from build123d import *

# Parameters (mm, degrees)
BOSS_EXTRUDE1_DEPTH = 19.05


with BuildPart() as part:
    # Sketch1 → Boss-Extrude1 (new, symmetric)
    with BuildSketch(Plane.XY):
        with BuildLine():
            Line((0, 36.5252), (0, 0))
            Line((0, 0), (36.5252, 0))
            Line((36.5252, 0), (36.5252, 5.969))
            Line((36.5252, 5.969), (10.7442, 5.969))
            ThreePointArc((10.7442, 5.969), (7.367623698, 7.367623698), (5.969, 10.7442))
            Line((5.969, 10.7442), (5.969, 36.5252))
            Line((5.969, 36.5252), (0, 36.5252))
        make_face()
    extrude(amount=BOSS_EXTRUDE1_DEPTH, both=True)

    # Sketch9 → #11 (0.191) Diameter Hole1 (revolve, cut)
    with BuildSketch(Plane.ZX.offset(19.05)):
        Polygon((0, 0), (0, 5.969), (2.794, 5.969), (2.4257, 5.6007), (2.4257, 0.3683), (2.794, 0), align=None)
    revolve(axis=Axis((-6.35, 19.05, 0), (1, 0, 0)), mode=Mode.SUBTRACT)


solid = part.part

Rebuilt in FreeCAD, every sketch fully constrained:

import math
import FreeCAD as App
import Part
import Sketcher
Q = App.Units.Quantity

doc = App.newDocument("Part")
params = doc.addObject("Spreadsheet::Sheet", "Params")
for row, (alias, value) in enumerate([
    ("sketch1_radius", "0.188 in"),
    ("sketch1_width", "1.438 in"),
    ("sketch1_width2", "1.015 in"),
    ("pad1_length", "1.5 in"),
    ("sketch2_height", "0.11 in"),
    ("sketch2_width", "0.235 in"),
    ("sketch2_width2", "0.206 in"),
    ("groove_angle", "360 deg"),
], start=1):
    params.set(f"A{row}", alias)
    params.set(f"B{row}", "=" + value)
    params.setAlias(f"B{row}", alias)

body = doc.addObject("PartDesign::Body", "Body")

# Sketch on XY plane
sketch1 = body.newObject("Sketcher::SketchObject", "Sketch")
sketch1.AttachmentSupport = (doc.getObject("XY_Plane"), [""])
sketch1.MapMode = "FlatFace"
sketch1.addGeometry([
    Part.LineSegment(App.Vector(0, 36.5252, 0), App.Vector(0, 0, 0)),  # 0
    Part.LineSegment(App.Vector(0, 0, 0), App.Vector(36.5252, 0, 0)),  # 1
    Part.LineSegment(App.Vector(36.5252, 0, 0), App.Vector(36.5252, 5.969, 0)),  # 2
    Part.LineSegment(App.Vector(36.5252, 5.969, 0), App.Vector(10.7442, 5.969, 0)),  # 3
    Part.ArcOfCircle(Part.Circle(App.Vector(10.7442, 10.7442, 0), App.Vector(0, 0, 1), 4.7752), math.radians(180), math.radians(270)),  # 4
    Part.LineSegment(App.Vector(5.969, 10.7442, 0), App.Vector(5.969, 36.5252, 0)),  # 5
    Part.LineSegment(App.Vector(5.969, 36.5252, 0), App.Vector(0, 36.5252, 0)),  # 6
], False)
sketch1.addConstraint([
    Sketcher.Constraint("Coincident", 0, 2, 1, 1),
    Sketcher.Constraint("Coincident", 1, 2, 2, 1),
    Sketcher.Constraint("Coincident", 2, 2, 3, 1),
    Sketcher.Constraint("Tangent", 3, 2, 4, 2),
    Sketcher.Constraint("Tangent", 4, 1, 5, 1),
    Sketcher.Constraint("Coincident", 5, 2, 6, 1),
    Sketcher.Constraint("Coincident", 6, 2, 0, 1),
    Sketcher.Constraint("Vertical", 0),
    Sketcher.Constraint("Horizontal", 1),
    Sketcher.Constraint("Vertical", 2),
    Sketcher.Constraint("Horizontal", 3),
    Sketcher.Constraint("Vertical", 5),
    Sketcher.Constraint("Horizontal", 6),
    Sketcher.Constraint("Coincident", 0, 2, -1, 1),
    Sketcher.Constraint("Equal", 1, 0),
    Sketcher.Constraint("Equal", 6, 2),
    Sketcher.Constraint("Radius", 4, Q("0.188 in")),
    Sketcher.Constraint("DistanceX", 1, 1, 1, 2, Q("1.438 in")),
    Sketcher.Constraint("DistanceX", 3, 2, 3, 1, Q("1.015 in")),
])
sketch1.setExpression("Constraints[16]", "Params.sketch1_radius")
sketch1.setExpression("Constraints[17]", "Params.sketch1_width")
sketch1.setExpression("Constraints[18]", "Params.sketch1_width2")
pad1 = body.newObject("PartDesign::Pad", "Pad")
pad1.Profile = sketch1
pad1.setExpression("Length", "Params.pad1_length")
pad1.Midplane = True

# Sketch on XZ plane
sketch2 = body.newObject("Sketcher::SketchObject", "Sketch001")
sketch2.AttachmentSupport = (doc.getObject("XZ_Plane"), [""])
sketch2.MapMode = "FlatFace"
sketch2.AttachmentOffset = App.Placement(App.Vector(0, 0, -0.75 * 25.4), App.Rotation())
sketch2.addGeometry([
    Part.LineSegment(App.Vector(5.969, 0, 0), App.Vector(0, 0, 0)),  # 0
    Part.LineSegment(App.Vector(0, 0, 0), App.Vector(0, 2.794, 0)),  # 1
    Part.LineSegment(App.Vector(0, 2.794, 0), App.Vector(0.3683, 2.4257, 0)),  # 2
    Part.LineSegment(App.Vector(0.3683, 2.4257, 0), App.Vector(5.6007, 2.4257, 0)),  # 3
    Part.LineSegment(App.Vector(5.6007, 2.4257, 0), App.Vector(5.969, 2.794, 0)),  # 4
    Part.LineSegment(App.Vector(5.969, 2.794, 0), App.Vector(5.969, 0, 0)),  # 5
], False)
sketch2.addConstraint([
    Sketcher.Constraint("Coincident", 0, 2, 1, 1),
    Sketcher.Constraint("Coincident", 1, 2, 2, 1),
    Sketcher.Constraint("Coincident", 2, 2, 3, 1),
    Sketcher.Constraint("Coincident", 3, 2, 4, 1),
    Sketcher.Constraint("Coincident", 4, 2, 5, 1),
    Sketcher.Constraint("Coincident", 5, 2, 0, 1),
    Sketcher.Constraint("Horizontal", 0),
    Sketcher.Constraint("Vertical", 1),
    Sketcher.Constraint("Horizontal", 3),
    Sketcher.Constraint("Vertical", 5),
    Sketcher.Constraint("Coincident", 0, 2, -1, 1),
    Sketcher.Constraint("Perpendicular", 2, 4),
    Sketcher.Constraint("Horizontal", 1, 2, 4, 2),
    Sketcher.Constraint("Equal", 2, 4),
    Sketcher.Constraint("DistanceY", 1, 1, 1, 2, Q("0.11 in")),
    Sketcher.Constraint("DistanceX", 0, 2, 0, 1, Q("0.235 in")),
    Sketcher.Constraint("DistanceX", 3, 1, 3, 2, Q("0.206 in")),
])
sketch2.setExpression("Constraints[14]", "Params.sketch2_height")
sketch2.setExpression("Constraints[15]", "Params.sketch2_width")
sketch2.setExpression("Constraints[16]", "Params.sketch2_width2")
groove = body.newObject("PartDesign::Groove", "Groove")
groove.Profile = sketch2
groove.ReferenceAxis = (sketch2, ["H_Axis"])
groove.setExpression("Angle", "Params.groove_angle")

doc.recompute()
